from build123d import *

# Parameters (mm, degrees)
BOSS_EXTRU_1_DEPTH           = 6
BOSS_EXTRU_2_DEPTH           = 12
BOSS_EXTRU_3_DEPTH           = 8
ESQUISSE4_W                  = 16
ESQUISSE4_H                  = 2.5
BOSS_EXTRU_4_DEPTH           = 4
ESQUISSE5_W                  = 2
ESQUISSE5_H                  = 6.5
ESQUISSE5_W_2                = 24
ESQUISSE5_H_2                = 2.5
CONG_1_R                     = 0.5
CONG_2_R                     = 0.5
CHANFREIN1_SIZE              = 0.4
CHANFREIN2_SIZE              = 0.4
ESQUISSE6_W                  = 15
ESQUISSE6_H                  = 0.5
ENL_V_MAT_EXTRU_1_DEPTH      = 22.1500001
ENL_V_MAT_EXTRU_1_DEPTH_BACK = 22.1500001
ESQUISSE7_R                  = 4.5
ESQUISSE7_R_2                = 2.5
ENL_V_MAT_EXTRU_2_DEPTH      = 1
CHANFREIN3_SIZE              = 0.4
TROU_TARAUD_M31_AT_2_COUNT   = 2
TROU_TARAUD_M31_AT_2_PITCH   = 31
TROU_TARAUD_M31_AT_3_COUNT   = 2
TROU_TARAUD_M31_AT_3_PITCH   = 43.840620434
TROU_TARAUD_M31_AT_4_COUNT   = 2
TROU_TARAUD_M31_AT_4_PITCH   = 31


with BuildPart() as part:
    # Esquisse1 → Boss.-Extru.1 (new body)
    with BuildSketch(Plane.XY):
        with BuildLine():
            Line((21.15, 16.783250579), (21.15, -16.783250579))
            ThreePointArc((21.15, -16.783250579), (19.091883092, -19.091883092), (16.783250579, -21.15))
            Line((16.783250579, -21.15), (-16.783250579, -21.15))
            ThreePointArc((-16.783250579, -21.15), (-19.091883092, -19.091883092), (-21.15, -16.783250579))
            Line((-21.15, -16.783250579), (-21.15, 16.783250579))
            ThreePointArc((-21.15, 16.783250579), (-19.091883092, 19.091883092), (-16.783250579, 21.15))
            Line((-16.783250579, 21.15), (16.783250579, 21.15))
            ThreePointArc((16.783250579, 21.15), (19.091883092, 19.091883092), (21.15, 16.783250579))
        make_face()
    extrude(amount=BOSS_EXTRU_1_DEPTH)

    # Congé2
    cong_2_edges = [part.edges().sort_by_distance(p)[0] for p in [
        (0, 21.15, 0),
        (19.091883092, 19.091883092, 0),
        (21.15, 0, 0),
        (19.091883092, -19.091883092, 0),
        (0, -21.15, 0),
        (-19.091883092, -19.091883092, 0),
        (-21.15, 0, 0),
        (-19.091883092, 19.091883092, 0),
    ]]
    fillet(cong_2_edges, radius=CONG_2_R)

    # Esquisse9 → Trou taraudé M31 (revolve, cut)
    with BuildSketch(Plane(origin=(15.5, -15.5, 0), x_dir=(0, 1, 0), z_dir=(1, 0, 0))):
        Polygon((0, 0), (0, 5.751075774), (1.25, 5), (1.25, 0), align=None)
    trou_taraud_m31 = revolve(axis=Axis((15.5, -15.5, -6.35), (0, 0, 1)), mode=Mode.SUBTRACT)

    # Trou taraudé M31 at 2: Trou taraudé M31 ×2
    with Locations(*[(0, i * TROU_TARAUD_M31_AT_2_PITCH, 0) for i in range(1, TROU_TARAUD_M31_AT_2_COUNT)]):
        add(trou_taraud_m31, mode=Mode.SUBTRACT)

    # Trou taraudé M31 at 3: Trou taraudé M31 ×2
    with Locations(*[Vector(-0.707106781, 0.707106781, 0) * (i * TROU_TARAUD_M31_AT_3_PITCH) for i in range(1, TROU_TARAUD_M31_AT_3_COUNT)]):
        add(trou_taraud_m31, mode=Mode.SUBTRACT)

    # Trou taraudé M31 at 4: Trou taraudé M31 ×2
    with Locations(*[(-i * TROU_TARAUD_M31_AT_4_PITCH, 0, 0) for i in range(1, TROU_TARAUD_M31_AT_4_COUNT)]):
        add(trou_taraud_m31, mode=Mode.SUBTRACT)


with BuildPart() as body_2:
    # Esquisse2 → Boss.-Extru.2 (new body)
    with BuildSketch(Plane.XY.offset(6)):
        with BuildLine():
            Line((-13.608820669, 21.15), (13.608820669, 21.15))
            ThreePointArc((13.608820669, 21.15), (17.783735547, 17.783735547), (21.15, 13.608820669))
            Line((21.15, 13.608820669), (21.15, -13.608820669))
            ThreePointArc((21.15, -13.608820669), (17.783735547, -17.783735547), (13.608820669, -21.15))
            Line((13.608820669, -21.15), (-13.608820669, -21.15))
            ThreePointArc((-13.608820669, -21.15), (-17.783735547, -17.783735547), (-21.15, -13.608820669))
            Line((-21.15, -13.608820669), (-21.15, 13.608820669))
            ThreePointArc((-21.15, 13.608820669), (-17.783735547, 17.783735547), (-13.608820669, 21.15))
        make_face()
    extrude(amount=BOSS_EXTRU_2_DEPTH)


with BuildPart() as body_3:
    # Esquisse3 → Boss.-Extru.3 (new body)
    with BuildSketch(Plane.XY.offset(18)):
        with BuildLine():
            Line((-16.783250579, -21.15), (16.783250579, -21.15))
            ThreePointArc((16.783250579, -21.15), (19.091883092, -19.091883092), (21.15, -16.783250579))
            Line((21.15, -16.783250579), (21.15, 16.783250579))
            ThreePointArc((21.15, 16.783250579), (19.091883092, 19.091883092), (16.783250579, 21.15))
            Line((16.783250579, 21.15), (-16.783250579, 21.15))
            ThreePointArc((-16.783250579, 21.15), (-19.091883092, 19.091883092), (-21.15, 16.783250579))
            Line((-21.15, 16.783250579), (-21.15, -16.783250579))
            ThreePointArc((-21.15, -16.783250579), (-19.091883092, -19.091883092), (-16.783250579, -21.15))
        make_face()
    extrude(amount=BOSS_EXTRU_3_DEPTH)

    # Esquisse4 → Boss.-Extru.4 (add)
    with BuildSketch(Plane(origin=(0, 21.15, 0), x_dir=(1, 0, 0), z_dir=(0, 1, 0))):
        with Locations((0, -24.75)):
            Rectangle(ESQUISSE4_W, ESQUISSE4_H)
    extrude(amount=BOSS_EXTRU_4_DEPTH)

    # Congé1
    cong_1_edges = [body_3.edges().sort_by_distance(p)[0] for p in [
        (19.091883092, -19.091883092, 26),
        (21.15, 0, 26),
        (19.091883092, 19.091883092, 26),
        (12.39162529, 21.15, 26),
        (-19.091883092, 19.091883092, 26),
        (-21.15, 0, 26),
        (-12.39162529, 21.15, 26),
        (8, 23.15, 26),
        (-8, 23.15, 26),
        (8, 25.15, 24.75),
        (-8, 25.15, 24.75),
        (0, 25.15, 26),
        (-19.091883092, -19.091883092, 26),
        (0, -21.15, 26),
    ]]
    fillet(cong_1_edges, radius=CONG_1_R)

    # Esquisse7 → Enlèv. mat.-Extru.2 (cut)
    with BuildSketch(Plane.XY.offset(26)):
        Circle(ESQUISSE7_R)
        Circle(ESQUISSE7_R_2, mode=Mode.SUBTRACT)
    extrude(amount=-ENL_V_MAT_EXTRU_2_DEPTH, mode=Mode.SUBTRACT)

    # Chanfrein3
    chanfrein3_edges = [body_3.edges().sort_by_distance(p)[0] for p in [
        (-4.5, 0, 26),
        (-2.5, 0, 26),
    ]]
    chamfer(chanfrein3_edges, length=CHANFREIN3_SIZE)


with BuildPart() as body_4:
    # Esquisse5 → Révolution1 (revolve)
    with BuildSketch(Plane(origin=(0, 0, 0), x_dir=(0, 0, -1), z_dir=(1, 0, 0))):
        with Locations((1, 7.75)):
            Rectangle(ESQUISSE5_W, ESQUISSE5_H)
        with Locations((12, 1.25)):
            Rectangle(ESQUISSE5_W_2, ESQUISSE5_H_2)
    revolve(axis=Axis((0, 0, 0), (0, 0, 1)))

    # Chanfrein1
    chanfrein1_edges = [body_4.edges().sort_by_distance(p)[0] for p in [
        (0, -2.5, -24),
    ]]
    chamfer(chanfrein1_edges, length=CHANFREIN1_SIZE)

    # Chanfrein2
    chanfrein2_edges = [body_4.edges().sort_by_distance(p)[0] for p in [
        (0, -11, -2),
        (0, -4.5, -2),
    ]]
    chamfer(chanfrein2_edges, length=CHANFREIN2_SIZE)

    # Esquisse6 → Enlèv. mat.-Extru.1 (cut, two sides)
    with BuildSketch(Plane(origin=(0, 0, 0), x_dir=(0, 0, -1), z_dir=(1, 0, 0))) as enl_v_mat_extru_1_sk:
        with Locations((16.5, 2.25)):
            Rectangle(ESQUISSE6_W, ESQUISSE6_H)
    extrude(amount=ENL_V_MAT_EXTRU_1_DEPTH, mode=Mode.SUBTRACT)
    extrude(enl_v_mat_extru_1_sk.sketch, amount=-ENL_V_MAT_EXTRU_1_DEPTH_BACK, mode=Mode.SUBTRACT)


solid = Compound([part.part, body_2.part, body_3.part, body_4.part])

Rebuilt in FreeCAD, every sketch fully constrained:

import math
import FreeCAD as App
import Part
import Sketcher

V = App.Vector
Q = App.Units.Quantity


def edges_at(feature, points):
    """Names of the edges that pass closest to the given points."""
    edges = feature.Shape.Edges
    near = lambda p: min(range(len(edges)), key=lambda i: edges[i].distToShape(Part.Vertex(*p))[0])
    return sorted({f"Edge{near(p) + 1}" for p in points})


def add_polygon(sketch, points):
    """Adds a closed chain of lines whose ends are joined by coincident constraints."""
    first, n = sketch.GeometryCount, len(points)
    for a, b in zip(points, points[1:] + points[:1]):
        sketch.addGeometry(Part.LineSegment(App.Vector(*a, 0), App.Vector(*b, 0)), False)
    for i in range(n):
        sketch.addConstraint(Sketcher.Constraint("Coincident", first + i, 2, first + (i + 1) % n, 1))

doc = App.newDocument("Part")
body = doc.addObject("PartDesign::Body", "Body")

sketch1 = body.newObject("Sketcher::SketchObject", "Sketch")
sketch1.AttachmentSupport = (doc.getObject("XY_Plane"), [""])
sketch1.MapMode = "FlatFace"
sketch1.addGeometry([
    Part.LineSegment(V(21, -17, 0), V(21, 17, 0)),
    Part.ArcOfCircle(Part.Circle(V(0, 0, 0), V(0, 0, 1), 27), math.radians(38.43), math.radians(51.57)),
    Part.LineSegment(V(17, 21, 0), V(-17, 21, 0)),
    Part.ArcOfCircle(Part.Circle(V(0, 0, 0), V(0, 0, 1), 27), math.radians(128.43), math.radians(141.57)),
    Part.LineSegment(V(-21, 17, 0), V(-21, -17, 0)),
    Part.ArcOfCircle(Part.Circle(V(0, 0, 0), V(0, 0, 1), 27), math.radians(-141.57), math.radians(-128.43)),
    Part.LineSegment(V(-17, -21, 0), V(17, -21, 0)),
    Part.ArcOfCircle(Part.Circle(V(0, 0, 0), V(0, 0, 1), 27), math.radians(-51.57), math.radians(-38.43)),
], False)
sketch1.addConstraint([
    Sketcher.Constraint("Coincident", 0, 2, 1, 1),
    Sketcher.Constraint("Coincident", 1, 2, 2, 1),
    Sketcher.Constraint("Coincident", 2, 2, 3, 1),
    Sketcher.Constraint("Coincident", 3, 2, 4, 1),
    Sketcher.Constraint("Coincident", 4, 2, 5, 1),
    Sketcher.Constraint("Coincident", 5, 2, 6, 1),
    Sketcher.Constraint("Coincident", 6, 2, 7, 1),
    Sketcher.Constraint("Coincident", 7, 2, 0, 1),
    Sketcher.Constraint("Vertical", 0),
    Sketcher.Constraint("Horizontal", 2),
    Sketcher.Constraint("Vertical", 4),
    Sketcher.Constraint("Horizontal", 6),
    Sketcher.Constraint("Coincident", 1, 3, -1, 1),
    Sketcher.Constraint("Coincident", 3, 3, -1, 1),
    Sketcher.Constraint("Coincident", 5, 3, -1, 1),
    Sketcher.Constraint("Coincident", 7, 3, -1, 1),
    Sketcher.Constraint("Equal", 1, 3),
    Sketcher.Constraint("Equal", 3, 5),
    Sketcher.Constraint("Equal", 5, 7),
    Sketcher.Constraint("Horizontal", 0, 2, 3, 2),
    Sketcher.Constraint("Vertical", 2, 2, 5, 2),
    Sketcher.Constraint("Equal", 6, 0),
    Sketcher.Constraint("Radius", 1, Q("27 mm")),
    Sketcher.Constraint("DistanceX", -1, 1, 0, 2, Q("21.15 mm")),
])
pad1 = body.newObject("PartDesign::Pad", "Pad")
pad1.Profile = sketch1
pad1.Length = 6
doc.recompute()

fillet = body.newObject("PartDesign::Fillet", "Fillet")
fillet.Base = (pad1, edges_at(pad1, [
    (0, 21.15, 0),
    (19.092, 19.092, 0),
    (21.15, 0, 0),
    (19.092, -19.092, 0),
    (0, -21.15, 0),
    (-19.092, -19.092, 0),
    (-21.15, 0, 0),
    (-19.092, 19.092, 0),
]))
fillet.Radius = 0.5

sketch2 = body.newObject("Sketcher::SketchObject", "Sketch001")
sketch2.AttachmentSupport = (doc.getObject("YZ_Plane"), [""])
sketch2.MapMode = "FlatFace"
sketch2.AttachmentOffset = App.Placement(V(0, 0, 15.5), App.Rotation())
add_polygon(sketch2, [(-15.5, 5.8), (-15.5, 0), (-14.2, 0), (-14.2, 5)])
sketch2.addGeometry(Part.LineSegment(V(-15.5, 0, 0), V(-15.5, 5.8, 0)), True)
sketch2.addConstraint([
    Sketcher.Constraint("Vertical", 0),
    Sketcher.Constraint("Horizontal", 1),
    Sketcher.Constraint("Vertical", 2),
    Sketcher.Constraint("Vertical", 4),
    Sketcher.Constraint("Coincident", 4, 1, 0, 2),
    Sketcher.Constraint("PointOnObject", 0, 2, -1),
    Sketcher.Constraint("Equal", 0, 4),
    Sketcher.Constraint("DistanceY", 2, 1, 2, 2, Q("5 mm")),
    Sketcher.Constraint("Angle", 3, Q("149 deg")),
    Sketcher.Constraint("DistanceX", 1, 1, 1, 2, Q("1.25 mm")),
    Sketcher.Constraint("DistanceX", 0, 2, -1, 1, Q("15.5 mm")),
])
groove = body.newObject("PartDesign::Groove", "Groove")
groove.Profile = sketch2
groove.ReferenceAxis = (sketch2, ["Axis0"])
groove.Angle = 360
doc.recompute()

linearpattern = body.newObject("PartDesign::LinearPattern", "LinearPattern")
linearpattern.Originals = [groove]
linearpattern.Direction = (doc.getObject("Y_Axis"), [""])
linearpattern.Mode = "offset"
linearpattern.Offset = 31
linearpattern.Occurrences = 2
body.Tip = linearpattern
doc.recompute()

datumline = body.newObject("PartDesign::Line", "DatumLine")
datumline.Placement = App.Placement(V(0, 0, 0), App.Rotation(V(0, 0, 1), V(-0.707106781, 0.707106781, 0)))
linearpattern2 = body.newObject("PartDesign::LinearPattern", "LinearPattern001")
linearpattern2.Originals = [groove]
linearpattern2.Direction = (datumline, [""])
linearpattern2.Mode = "offset"
linearpattern2.Offset = 43.84062
linearpattern2.Occurrences = 2
body.Tip = linearpattern2
doc.recompute()

linearpattern3 = body.newObject("PartDesign::LinearPattern", "LinearPattern002")
linearpattern3.Originals = [groove]
linearpattern3.Direction = (doc.getObject("X_Axis"), [""])
linearpattern3.Mode = "offset"
linearpattern3.Offset = 31
linearpattern3.Occurrences = 2
linearpattern3.Reversed = True
body.Tip = linearpattern3
body2 = doc.addObject("PartDesign::Body", "Body001")

sketch3 = body2.newObject("Sketcher::SketchObject", "Sketch002")
sketch3.AttachmentSupport = (doc.getObject("XY_Plane001"), [""])
sketch3.MapMode = "FlatFace"
sketch3.AttachmentOffset = App.Placement(V(0, 0, 6), App.Rotation())
sketch3.addGeometry([
    Part.LineSegment(V(14, 21, 0), V(-14, 21, 0)),
    Part.ArcOfCircle(Part.Circle(V(0, 0, 0), V(0, 0, 1), 25), math.radians(123), math.radians(147)),
    Part.LineSegment(V(-21, 14, 0), V(-21, -14, 0)),
    Part.ArcOfCircle(Part.Circle(V(0, 0, 0), V(0, 0, 1), 25), math.radians(-147), math.radians(-123)),
    Part.LineSegment(V(-14, -21, 0), V(14, -21, 0)),
    Part.ArcOfCircle(Part.Circle(V(0, 0, 0), V(0, 0, 1), 25), math.radians(-57), math.radians(-33)),
    Part.LineSegment(V(21, -14, 0), V(21, 14, 0)),
    Part.ArcOfCircle(Part.Circle(V(0, 0, 0), V(0, 0, 1), 25), math.radians(33), math.radians(57)),
], False)
sketch3.addConstraint([
    Sketcher.Constraint("Coincident", 0, 2, 1, 1),
    Sketcher.Constraint("Coincident", 1, 2, 2, 1),
    Sketcher.Constraint("Coincident", 2, 2, 3, 1),
    Sketcher.Constraint("Coincident", 3, 2, 4, 1),
    Sketcher.Constraint("Coincident", 4, 2, 5, 1),
    Sketcher.Constraint("Coincident", 5, 2, 6, 1),
    Sketcher.Constraint("Coincident", 6, 2, 7, 1),
    Sketcher.Constraint("Coincident", 7, 2, 0, 1),
    Sketcher.Constraint("Horizontal", 0),
    Sketcher.Constraint("Vertical", 2),
    Sketcher.Constraint("Horizontal", 4),
    Sketcher.Constraint("Vertical", 6),
    Sketcher.Constraint("Coincident", 1, 3, -1, 1),
    Sketcher.Constraint("Coincident", 3, 3, -1, 1),
    Sketcher.Constraint("Coincident", 5, 3, -1, 1),
    Sketcher.Constraint("Coincident", 7, 3, -1, 1),
    Sketcher.Constraint("Equal", 1, 3),
    Sketcher.Constraint("Equal", 3, 5),
    Sketcher.Constraint("Equal", 5, 7),
    Sketcher.Constraint("Horizontal", 2, 2, 5, 2),
    Sketcher.Constraint("Vertical", 0, 2, 3, 2),
    Sketcher.Constraint("Equal", 4, 2),
    Sketcher.Constraint("Radius", 1, Q("25.15 mm")),
    Sketcher.Constraint("DistanceY", -1, 1, 0, 2, Q("21.15 mm")),
])
pad2 = body2.newObject("PartDesign::Pad", "Pad001")
pad2.Profile = sketch3
pad2.Length = 12
body3 = doc.addObject("PartDesign::Body", "Body002")

sketch4 = body3.newObject("Sketcher::SketchObject", "Sketch003")
sketch4.AttachmentSupport = (doc.getObject("XY_Plane002"), [""])
sketch4.MapMode = "FlatFace"
sketch4.AttachmentOffset = App.Placement(V(0, 0, 18), App.Rotation())
sketch4.addGeometry([
    Part.LineSegment(V(-17, -21, 0), V(17, -21, 0)),
    Part.ArcOfCircle(Part.Circle(V(0, 0, 0), V(0, 0, 1), 27), math.radians(-51.57), math.radians(-38.43)),
    Part.LineSegment(V(21, -17, 0), V(21, 17, 0)),
    Part.ArcOfCircle(Part.Circle(V(0, 0, 0), V(0, 0, 1), 27), math.radians(38.43), math.radians(51.57)),
    Part.LineSegment(V(17, 21, 0), V(-17, 21, 0)),
    Part.ArcOfCircle(Part.Circle(V(0, 0, 0), V(0, 0, 1), 27), math.radians(128.43), math.radians(141.57)),
    Part.LineSegment(V(-21, 17, 0), V(-21, -17, 0)),
    Part.ArcOfCircle(Part.Circle(V(0, 0, 0), V(0, 0, 1), 27), math.radians(-141.57), math.radians(-128.43)),
], False)
sketch4.addConstraint([
    Sketcher.Constraint("Coincident", 0, 2, 1, 1),
    Sketcher.Constraint("Coincident", 1, 2, 2, 1),
    Sketcher.Constraint("Coincident", 2, 2, 3, 1),
    Sketcher.Constraint("Coincident", 3, 2, 4, 1),
    Sketcher.Constraint("Coincident", 4, 2, 5, 1),
    Sketcher.Constraint("Coincident", 5, 2, 6, 1),
    Sketcher.Constraint("Coincident", 6, 2, 7, 1),
    Sketcher.Constraint("Coincident", 7, 2, 0, 1),
    Sketcher.Constraint("Horizontal", 0),
    Sketcher.Constraint("Vertical", 2),
    Sketcher.Constraint("Horizontal", 4),
    Sketcher.Constraint("Vertical", 6),
    Sketcher.Constraint("Coincident", 1, 3, -1, 1),
    Sketcher.Constraint("Coincident", 3, 3, -1, 1),
    Sketcher.Constraint("Coincident", 5, 3, -1, 1),
    Sketcher.Constraint("Coincident", 7, 3, -1, 1),
    Sketcher.Constraint("Equal", 1, 3),
    Sketcher.Constraint("Equal", 3, 5),
    Sketcher.Constraint("Equal", 5, 7),
    Sketcher.Constraint("Horizontal", 2, 2, 5, 2),
    Sketcher.Constraint("Vertical", 0, 2, 3, 2),
    Sketcher.Constraint("Equal", 4, 2),
    Sketcher.Constraint("Radius", 1, Q("27 mm")),
    Sketcher.Constraint("DistanceY", 0, 2, -1, 1, Q("21.15 mm")),
])
pad3 = body3.newObject("PartDesign::Pad", "Pad002")
pad3.Profile = sketch4
pad3.Length = 8

sketch5 = body3.newObject("Sketcher::SketchObject", "Sketch004")
sketch5.AttachmentSupport = (doc.getObject("XZ_Plane002"), [""])
sketch5.MapMode = "FlatFace"
sketch5.AttachmentOffset = App.Placement(V(0, 0, -21.15), App.Rotation())
add_polygon(sketch5, [(-8, 23.5), (-8, 26), (8, 26), (8, 23.5)])
sketch5.addConstraint([
    Sketcher.Constraint("Vertical", 0),
    Sketcher.Constraint("Horizontal", 1),
    Sketcher.Constraint("Vertical", 2),
    Sketcher.Constraint("Horizontal", 3),
    Sketcher.Constraint("DistanceX", 1, 1, 1, 2, Q("16 mm")),
    Sketcher.Constraint("DistanceY", 0, 1, 0, 2, Q("2.5 mm")),
    Sketcher.Constraint("DistanceX", 0, 2, -1, 1, Q("8 mm")),
    Sketcher.Constraint("DistanceY", -1, 1, 0, 2, Q("26 mm")),
])
pad4 = body3.newObject("PartDesign::Pad", "Pad003")
pad4.Profile = sketch5
pad4.Length = 4
pad4.Reversed = True
doc.recompute()

fillet2 = body3.newObject("PartDesign::Fillet", "Fillet001")
fillet2.Base = (pad4, edges_at(pad4, [
    (19.092, -19.092, 26),
    (21.15, 0, 26),
    (19.092, 19.092, 26),
    (12.392, 21.15, 26),
    (-19.092, 19.092, 26),
    (-21.15, 0, 26),
    (-12.392, 21.15, 26),
    (8, 23.15, 26),
    (-8, 23.15, 26),
    (8, 25.15, 24.75),
    (-8, 25.15, 24.75),
    (0, 25.15, 26),
    (-19.092, -19.092, 26),
    (0, -21.15, 26),
]))
fillet2.Radius = 0.5

sketch6 = body3.newObject("Sketcher::SketchObject", "Sketch005")
sketch6.AttachmentSupport = (doc.getObject("XY_Plane002"), [""])
sketch6.MapMode = "FlatFace"
sketch6.AttachmentOffset = App.Placement(V(0, 0, 26), App.Rotation())
sketch6.addGeometry([
    Part.Circle(V(0, 0, 0), V(0, 0, 1), 4.5),
    Part.Circle(V(0, 0, 0), V(0, 0, 1), 2.5),
], False)
sketch6.addConstraint([
    Sketcher.Constraint("Coincident", 0, 3, -1, 1),
    Sketcher.Constraint("Coincident", 1, 3, -1, 1),
    Sketcher.Constraint("Diameter", 0, Q("9 mm")),
    Sketcher.Constraint("Diameter", 1, Q("5 mm")),
])
pocket1 = body3.newObject("PartDesign::Pocket", "Pocket")
pocket1.Profile = sketch6
pocket1.Length = 1
doc.recompute()

chamfer = body3.newObject("PartDesign::Chamfer", "Chamfer")
chamfer.Base = (pocket1, edges_at(pocket1, [(-4.5, 0, 26), (-2.5, 0, 26)]))
chamfer.Size = 0.4
body4 = doc.addObject("PartDesign::Body", "Body003")
body4.AllowCompound = True

sketch7 = body4.newObject("Sketcher::SketchObject", "Sketch006")
sketch7.AttachmentSupport = (doc.getObject("YZ_Plane003"), [""])
sketch7.MapMode = "FlatFace"
add_polygon(sketch7, [(11, 0), (4.5, 0), (4.5, -2), (11, -2)])
add_polygon(sketch7, [(2.5, 0), (0, 0), (0, -24), (2.5, -24)])
sketch7.addConstraint([
    Sketcher.Constraint("Horizontal", 0),
    Sketcher.Constraint("Vertical", 1),
    Sketcher.Constraint("Horizontal", 2),
    Sketcher.Constraint("Vertical", 3),
    Sketcher.Constraint("Horizontal", 4),
    Sketcher.Constraint("Vertical", 5),
    Sketcher.Constraint("Horizontal", 6),
    Sketcher.Constraint("Vertical", 7),
    Sketcher.Constraint("Coincident", 4, 2, -1, 1),
    Sketcher.Constraint("PointOnObject", 0, 2, -1),
    Sketcher.Constraint("DistanceY", 1, 2, 1, 1, Q("2 mm")),
    Sketcher.Constraint("DistanceY", 5, 2, 5, 1, Q("24 mm")),
    Sketcher.Constraint("DistanceX", 0, 2, 0, 1, Q("6.5 mm")),
    Sketcher.Constraint("DistanceX", 4, 2, 4, 1, Q("2.5 mm")),
    Sketcher.Constraint("DistanceX", -1, 1, 2, 2, Q("11 mm")),
])
revolution = body4.newObject("PartDesign::Revolution", "Revolution")
revolution.Profile = sketch7
revolution.ReferenceAxis = (sketch7, ["V_Axis"])
revolution.Angle = 360
doc.recompute()

chamfer2 = body4.newObject("PartDesign::Chamfer", "Chamfer001")
chamfer2.Base = (revolution, edges_at(revolution, [(0, -2.5, -24)]))
chamfer2.Size = 0.4
doc.recompute()

chamfer3 = body4.newObject("PartDesign::Chamfer", "Chamfer002")
chamfer3.Base = (chamfer2, edges_at(chamfer2, [(0, -11, -2), (0, -4.5, -2)]))
chamfer3.Size = 0.4

sketch8 = body4.newObject("Sketcher::SketchObject", "Sketch007")
sketch8.AttachmentSupport = (doc.getObject("YZ_Plane003"), [""])
sketch8.MapMode = "FlatFace"
add_polygon(sketch8, [(2.5, -9), (2, -9), (2, -24), (2.5, -24)])
sketch8.addConstraint([
    Sketcher.Constraint("Horizontal", 0),
    Sketcher.Constraint("Vertical", 1),
    Sketcher.Constraint("Horizontal", 2),
    Sketcher.Constraint("Vertical", 3),
    Sketcher.Constraint("DistanceY", 1, 2, 1, 1, Q("15 mm")),
    Sketcher.Constraint("DistanceX", 0, 2, 0, 1, Q("0.5 mm")),
    Sketcher.Constraint("DistanceX", -1, 1, 0, 2, Q("2 mm")),
    Sketcher.Constraint("DistanceY", 0, 2, -1, 1, Q("9 mm")),
])
pocket2 = body4.newObject("PartDesign::Pocket", "Pocket001")
pocket2.Profile = sketch8
pocket2.Type = "ThroughAll"
pocket2.Midplane = True

doc.recompute()
